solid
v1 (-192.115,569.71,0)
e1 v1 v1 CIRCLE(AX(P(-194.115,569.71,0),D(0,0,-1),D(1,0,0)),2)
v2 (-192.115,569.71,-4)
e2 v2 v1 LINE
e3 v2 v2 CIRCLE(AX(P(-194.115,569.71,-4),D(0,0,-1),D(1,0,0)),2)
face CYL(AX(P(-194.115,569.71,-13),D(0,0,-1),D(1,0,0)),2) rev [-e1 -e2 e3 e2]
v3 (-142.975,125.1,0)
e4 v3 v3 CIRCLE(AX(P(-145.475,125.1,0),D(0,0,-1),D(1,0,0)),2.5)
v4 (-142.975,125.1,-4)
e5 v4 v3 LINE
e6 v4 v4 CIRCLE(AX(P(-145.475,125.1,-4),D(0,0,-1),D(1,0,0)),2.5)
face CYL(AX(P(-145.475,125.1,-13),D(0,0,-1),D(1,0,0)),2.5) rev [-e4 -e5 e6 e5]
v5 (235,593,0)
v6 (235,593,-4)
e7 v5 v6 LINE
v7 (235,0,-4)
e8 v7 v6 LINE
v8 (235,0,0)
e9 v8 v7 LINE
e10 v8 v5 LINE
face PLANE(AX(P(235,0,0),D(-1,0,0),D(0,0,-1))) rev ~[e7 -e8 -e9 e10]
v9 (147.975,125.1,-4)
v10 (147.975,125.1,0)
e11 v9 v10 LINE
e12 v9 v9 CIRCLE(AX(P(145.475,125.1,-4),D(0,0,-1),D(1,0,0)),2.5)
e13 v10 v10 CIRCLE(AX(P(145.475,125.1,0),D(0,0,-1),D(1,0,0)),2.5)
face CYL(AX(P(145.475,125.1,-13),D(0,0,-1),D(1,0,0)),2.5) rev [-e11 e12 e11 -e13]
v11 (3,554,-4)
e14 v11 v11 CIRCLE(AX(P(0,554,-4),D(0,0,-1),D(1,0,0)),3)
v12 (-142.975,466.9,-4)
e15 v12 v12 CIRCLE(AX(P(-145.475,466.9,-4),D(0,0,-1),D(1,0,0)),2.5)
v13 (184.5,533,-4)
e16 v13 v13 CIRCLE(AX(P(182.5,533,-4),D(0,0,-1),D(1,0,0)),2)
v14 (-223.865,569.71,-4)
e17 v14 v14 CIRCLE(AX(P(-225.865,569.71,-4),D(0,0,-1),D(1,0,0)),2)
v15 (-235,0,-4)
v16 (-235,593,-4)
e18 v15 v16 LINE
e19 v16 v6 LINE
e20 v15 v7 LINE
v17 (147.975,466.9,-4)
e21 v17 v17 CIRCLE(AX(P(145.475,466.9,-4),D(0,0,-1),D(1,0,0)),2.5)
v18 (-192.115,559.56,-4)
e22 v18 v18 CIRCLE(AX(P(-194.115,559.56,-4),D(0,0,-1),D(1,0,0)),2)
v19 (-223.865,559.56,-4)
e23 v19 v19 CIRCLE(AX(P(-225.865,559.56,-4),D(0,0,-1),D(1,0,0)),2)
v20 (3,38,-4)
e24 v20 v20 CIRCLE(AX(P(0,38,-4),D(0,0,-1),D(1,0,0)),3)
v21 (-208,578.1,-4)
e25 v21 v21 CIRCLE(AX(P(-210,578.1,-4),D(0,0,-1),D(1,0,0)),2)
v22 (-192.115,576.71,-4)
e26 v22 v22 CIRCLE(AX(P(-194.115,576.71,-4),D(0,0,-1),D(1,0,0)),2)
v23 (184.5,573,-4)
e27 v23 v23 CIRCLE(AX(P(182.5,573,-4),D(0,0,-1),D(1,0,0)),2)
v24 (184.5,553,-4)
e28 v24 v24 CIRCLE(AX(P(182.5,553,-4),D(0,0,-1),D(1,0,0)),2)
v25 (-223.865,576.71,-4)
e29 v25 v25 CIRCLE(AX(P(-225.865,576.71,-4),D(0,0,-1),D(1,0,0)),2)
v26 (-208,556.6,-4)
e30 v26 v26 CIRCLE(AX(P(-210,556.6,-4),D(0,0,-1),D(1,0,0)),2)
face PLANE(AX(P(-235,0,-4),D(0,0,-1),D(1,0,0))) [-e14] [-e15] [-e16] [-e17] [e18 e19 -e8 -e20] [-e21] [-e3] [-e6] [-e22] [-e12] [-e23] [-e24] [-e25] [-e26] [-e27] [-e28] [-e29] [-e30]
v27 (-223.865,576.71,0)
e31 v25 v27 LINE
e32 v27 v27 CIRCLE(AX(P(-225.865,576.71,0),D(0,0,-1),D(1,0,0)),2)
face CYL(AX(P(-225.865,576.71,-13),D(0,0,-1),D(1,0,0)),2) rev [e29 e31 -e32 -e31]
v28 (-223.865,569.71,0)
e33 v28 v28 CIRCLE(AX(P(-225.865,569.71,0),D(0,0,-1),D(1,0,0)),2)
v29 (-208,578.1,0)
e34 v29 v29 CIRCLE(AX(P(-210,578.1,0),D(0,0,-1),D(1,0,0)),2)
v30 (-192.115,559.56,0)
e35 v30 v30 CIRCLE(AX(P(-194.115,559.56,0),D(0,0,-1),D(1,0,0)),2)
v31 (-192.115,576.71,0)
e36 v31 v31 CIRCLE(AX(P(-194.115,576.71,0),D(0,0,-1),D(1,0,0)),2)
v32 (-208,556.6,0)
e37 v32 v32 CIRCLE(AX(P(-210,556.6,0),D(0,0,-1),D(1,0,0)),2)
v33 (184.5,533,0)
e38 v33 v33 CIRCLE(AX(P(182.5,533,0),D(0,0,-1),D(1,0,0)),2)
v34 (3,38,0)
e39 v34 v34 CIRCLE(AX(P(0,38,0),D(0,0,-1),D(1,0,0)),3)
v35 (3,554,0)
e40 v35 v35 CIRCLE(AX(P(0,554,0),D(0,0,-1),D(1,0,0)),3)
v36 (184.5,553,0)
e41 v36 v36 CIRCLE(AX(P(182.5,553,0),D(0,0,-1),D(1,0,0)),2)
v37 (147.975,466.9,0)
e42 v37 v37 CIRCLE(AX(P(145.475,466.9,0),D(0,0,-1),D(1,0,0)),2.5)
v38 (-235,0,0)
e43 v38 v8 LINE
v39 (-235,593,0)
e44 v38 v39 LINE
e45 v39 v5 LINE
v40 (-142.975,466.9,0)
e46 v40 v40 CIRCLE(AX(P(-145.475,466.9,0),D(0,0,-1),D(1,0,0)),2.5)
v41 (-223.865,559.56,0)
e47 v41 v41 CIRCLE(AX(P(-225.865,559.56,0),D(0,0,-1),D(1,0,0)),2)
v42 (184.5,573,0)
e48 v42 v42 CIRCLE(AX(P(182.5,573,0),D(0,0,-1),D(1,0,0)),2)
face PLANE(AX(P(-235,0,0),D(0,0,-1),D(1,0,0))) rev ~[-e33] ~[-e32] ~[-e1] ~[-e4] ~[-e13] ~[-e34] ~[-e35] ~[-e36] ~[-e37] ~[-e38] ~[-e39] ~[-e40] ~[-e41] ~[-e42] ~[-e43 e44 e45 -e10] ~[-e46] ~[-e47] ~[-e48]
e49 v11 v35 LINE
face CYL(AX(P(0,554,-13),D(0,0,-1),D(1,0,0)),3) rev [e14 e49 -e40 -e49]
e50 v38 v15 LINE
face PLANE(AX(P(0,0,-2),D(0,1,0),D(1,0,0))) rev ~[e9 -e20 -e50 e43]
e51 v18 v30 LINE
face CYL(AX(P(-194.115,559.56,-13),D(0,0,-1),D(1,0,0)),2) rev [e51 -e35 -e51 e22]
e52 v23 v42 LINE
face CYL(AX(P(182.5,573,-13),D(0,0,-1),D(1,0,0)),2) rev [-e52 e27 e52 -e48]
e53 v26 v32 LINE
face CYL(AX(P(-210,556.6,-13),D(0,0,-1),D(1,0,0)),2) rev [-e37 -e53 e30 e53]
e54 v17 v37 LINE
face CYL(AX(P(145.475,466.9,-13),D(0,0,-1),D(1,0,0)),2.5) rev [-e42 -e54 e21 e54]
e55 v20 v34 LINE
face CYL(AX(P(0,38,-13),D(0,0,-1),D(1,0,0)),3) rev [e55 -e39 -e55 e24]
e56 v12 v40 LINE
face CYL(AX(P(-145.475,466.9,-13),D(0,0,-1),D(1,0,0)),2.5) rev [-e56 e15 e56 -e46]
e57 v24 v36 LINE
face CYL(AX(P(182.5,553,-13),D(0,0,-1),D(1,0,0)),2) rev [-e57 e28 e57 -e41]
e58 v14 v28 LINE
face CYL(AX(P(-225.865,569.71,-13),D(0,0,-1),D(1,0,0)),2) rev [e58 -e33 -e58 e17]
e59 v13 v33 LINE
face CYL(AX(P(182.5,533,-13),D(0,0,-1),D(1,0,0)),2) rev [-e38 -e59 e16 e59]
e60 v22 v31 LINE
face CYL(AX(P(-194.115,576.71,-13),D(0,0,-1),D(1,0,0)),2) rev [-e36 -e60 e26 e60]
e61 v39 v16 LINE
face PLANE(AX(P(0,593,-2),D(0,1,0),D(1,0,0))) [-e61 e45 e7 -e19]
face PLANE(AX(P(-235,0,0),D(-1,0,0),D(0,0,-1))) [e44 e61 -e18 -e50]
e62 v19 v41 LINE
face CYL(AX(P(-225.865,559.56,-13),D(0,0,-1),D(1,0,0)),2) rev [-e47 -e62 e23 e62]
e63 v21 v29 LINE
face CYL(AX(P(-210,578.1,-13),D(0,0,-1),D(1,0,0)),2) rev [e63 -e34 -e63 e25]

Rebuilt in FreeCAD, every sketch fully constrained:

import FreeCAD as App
import Part
import Sketcher
from FreeCAD import Vector
Q = App.Units.Quantity


def add_polygon(sketch, points):
    """Adds a closed chain of lines whose ends are joined by coincident constraints."""
    first, n = sketch.GeometryCount, len(points)
    for a, b in zip(points, points[1:] + points[:1]):
        sketch.addGeometry(Part.LineSegment(App.Vector(*a, 0), App.Vector(*b, 0)), False)
    for i in range(n):
        sketch.addConstraint(Sketcher.Constraint("Coincident", first + i, 2, first + (i + 1) % n, 1))

doc = App.newDocument("Part")
body = doc.addObject("PartDesign::Body", "Body")
body.AllowCompound = True

sketch1 = body.newObject("Sketcher::SketchObject", "Sketch")
sketch1.AttachmentSupport = (doc.getObject("XZ_Plane"), [""])
sketch1.MapMode = "FlatFace"
sketch1.addGeometry([
    Part.Circle(Vector(-225.9, 576.7, 0), Vector(0, 0, 1), 2),
    Part.Circle(Vector(-225.9, 569.7, 0), Vector(0, 0, 1), 2),
    Part.Circle(Vector(-225.9, 559.6, 0), Vector(0, 0, 1), 2),
    Part.Circle(Vector(-210, 556.6, 0), Vector(0, 0, 1), 2),
    Part.Circle(Vector(-210, 578.1, 0), Vector(0, 0, 1), 2),
    Part.Circle(Vector(-194.1, 576.7, 0), Vector(0, 0, 1), 2),
    Part.Circle(Vector(-194.1, 569.7, 0), Vector(0, 0, 1), 2),
    Part.Circle(Vector(-194.1, 559.6, 0), Vector(0, 0, 1), 2),
    Part.Circle(Vector(0, 38, 0), Vector(0, 0, 1), 3),
    Part.Circle(Vector(0, 554, 0), Vector(0, 0, 1), 3),
    Part.Circle(Vector(182.5, 573, 0), Vector(0, 0, 1), 2),
    Part.Circle(Vector(182.5, 553, 0), Vector(0, 0, 1), 2),
    Part.Circle(Vector(182.5, 533, 0), Vector(0, 0, 1), 2),
    Part.Circle(Vector(145.5, 466.9, 0), Vector(0, 0, 1), 2.5),
    Part.Circle(Vector(-145.5, 466.9, 0), Vector(0, 0, 1), 2.5),
    Part.Circle(Vector(-145.5, 125.1, 0), Vector(0, 0, 1), 2.5),
    Part.Circle(Vector(145.5, 125.1, 0), Vector(0, 0, 1), 2.5),
], False)
sketch1.addConstraint([
    Sketcher.Constraint("Equal", 0, 1),
    Sketcher.Constraint("Equal", 1, 2),
    Sketcher.Constraint("Equal", 2, 3),
    Sketcher.Constraint("Equal", 3, 4),
    Sketcher.Constraint("Equal", 4, 5),
    Sketcher.Constraint("Equal", 5, 6),
    Sketcher.Constraint("Equal", 6, 7),
    Sketcher.Constraint("Equal", 8, 9),
    Sketcher.Constraint("Equal", 7, 10),
    Sketcher.Constraint("Equal", 10, 11),
    Sketcher.Constraint("Equal", 11, 12),
    Sketcher.Constraint("Equal", 13, 14),
    Sketcher.Constraint("Equal", 14, 15),
    Sketcher.Constraint("Equal", 15, 16),
    Sketcher.Constraint("Symmetric", 13, 3, 14, 3, -2),
    Sketcher.Constraint("Symmetric", 15, 3, 16, 3, -2),
    Sketcher.Constraint("PointOnObject", 8, 3, -2),
    Sketcher.Constraint("PointOnObject", 9, 3, -2),
    Sketcher.Constraint("Horizontal", 0, 3, 5, 3),
    Sketcher.Constraint("Horizontal", 1, 3, 6, 3),
    Sketcher.Constraint("Horizontal", 2, 3, 7, 3),
    Sketcher.Constraint("Vertical", 0, 3, 1, 3),
    Sketcher.Constraint("Vertical", 1, 3, 2, 3),
    Sketcher.Constraint("Vertical", 3, 3, 4, 3),
    Sketcher.Constraint("Vertical", 5, 3, 6, 3),
    Sketcher.Constraint("Vertical", 6, 3, 7, 3),
    Sketcher.Constraint("Vertical", 10, 3, 11, 3),
    Sketcher.Constraint("Vertical", 11, 3, 12, 3),
    Sketcher.Constraint("Vertical", 14, 3, 15, 3),
    Sketcher.Constraint("Diameter", 0, Q("4 mm")),
    Sketcher.Constraint("Diameter", 8, Q("6 mm")),
    Sketcher.Constraint("Diameter", 13, Q("5 mm")),
    Sketcher.Constraint("DistanceX", 3, 3, -1, 1, Q("210 mm")),
    Sketcher.Constraint("DistanceY", -1, 1, 8, 3, Q("38 mm")),
    Sketcher.Constraint("DistanceY", -1, 1, 9, 3, Q("554 mm")),
    Sketcher.Constraint("DistanceY", -1, 1, 10, 3, Q("573 mm")),
    Sketcher.Constraint("DistanceY", -1, 1, 11, 3, Q("553 mm")),
    Sketcher.Constraint("DistanceY", -1, 1, 12, 3, Q("533 mm")),
    Sketcher.Constraint("DistanceY", 1, 3, 0, 3, Q("7 mm")),
    Sketcher.Constraint("DistanceY", -1, 1, 3, 3, Q("556.6 mm")),
    Sketcher.Constraint("DistanceY", -1, 1, 4, 3, Q("578.1 mm")),
    Sketcher.Constraint("DistanceX", -1, 1, 10, 3, Q("182.5 mm")),
    Sketcher.Constraint("DistanceY", -1, 1, 13, 3, Q("466.9 mm")),
    Sketcher.Constraint("DistanceY", -1, 1, 15, 3, Q("125.1 mm")),
    Sketcher.Constraint("DistanceY", -1, 1, 0, 3, Q("576.71 mm")),
    Sketcher.Constraint("DistanceY", -1, 1, 2, 3, Q("559.56 mm")),
    Sketcher.Constraint("DistanceX", 0, 3, 5, 3, Q("31.75 mm")),
    Sketcher.Constraint("DistanceX", 7, 3, 13, 3, Q("339.59 mm")),
    Sketcher.Constraint("DistanceX", 7, 3, 14, 3, Q("48.64 mm")),
])
pad1 = body.newObject("PartDesign::Pad", "Pad")
pad1.Profile = sketch1
pad1.Length = 20
body2 = doc.addObject("PartDesign::Body", "Body001")
body2.AllowCompound = True
doc.recompute()

body.Placement = App.Placement(Vector(0, 13, 0), App.Rotation(Vector(0, 0, 1), 0))
boolean = body2.newObject("PartDesign::Boolean", "Boolean")
boolean.Type = "Fuse"
boolean.addObjects([body])
body3 = doc.addObject("PartDesign::Body", "Body002")

sketch2 = body3.newObject("Sketcher::SketchObject", "Sketch001")
sketch2.AttachmentSupport = (doc.getObject("XY_Plane002"), [""])
sketch2.MapMode = "FlatFace"
add_polygon(sketch2, [(-235, 4), (-235, 0), (235, 0), (235, 4)])
sketch2.addConstraint([
    Sketcher.Constraint("Vertical", 0),
    Sketcher.Constraint("Horizontal", 1),
    Sketcher.Constraint("Vertical", 2),
    Sketcher.Constraint("Horizontal", 3),
    Sketcher.Constraint("Symmetric", 0, 2, 1, 2, -1, 1),
    Sketcher.Constraint("DistanceX", 1, 1, 1, 2, Q("470 mm")),
    Sketcher.Constraint("DistanceY", 0, 2, 0, 1, Q("4 mm")),
])
pad2 = body3.newObject("PartDesign::Pad", "Pad001")
pad2.Profile = sketch2
pad2.Length = 593
doc.recompute()

boolean2 = body3.newObject("PartDesign::Boolean", "Boolean001")
boolean2.Type = "Cut"
boolean2.addObjects([body2])
body4 = doc.addObject("PartDesign::Body", "Body003")
doc.recompute()

body3.Placement = App.Placement(Vector(0, 0, 0), App.Rotation(Vector(1, 0, 0), 270))
boolean3 = body4.newObject("PartDesign::Boolean", "Boolean002")
boolean3.Type = "Fuse"
boolean3.addObjects([body3])

doc.recompute()
